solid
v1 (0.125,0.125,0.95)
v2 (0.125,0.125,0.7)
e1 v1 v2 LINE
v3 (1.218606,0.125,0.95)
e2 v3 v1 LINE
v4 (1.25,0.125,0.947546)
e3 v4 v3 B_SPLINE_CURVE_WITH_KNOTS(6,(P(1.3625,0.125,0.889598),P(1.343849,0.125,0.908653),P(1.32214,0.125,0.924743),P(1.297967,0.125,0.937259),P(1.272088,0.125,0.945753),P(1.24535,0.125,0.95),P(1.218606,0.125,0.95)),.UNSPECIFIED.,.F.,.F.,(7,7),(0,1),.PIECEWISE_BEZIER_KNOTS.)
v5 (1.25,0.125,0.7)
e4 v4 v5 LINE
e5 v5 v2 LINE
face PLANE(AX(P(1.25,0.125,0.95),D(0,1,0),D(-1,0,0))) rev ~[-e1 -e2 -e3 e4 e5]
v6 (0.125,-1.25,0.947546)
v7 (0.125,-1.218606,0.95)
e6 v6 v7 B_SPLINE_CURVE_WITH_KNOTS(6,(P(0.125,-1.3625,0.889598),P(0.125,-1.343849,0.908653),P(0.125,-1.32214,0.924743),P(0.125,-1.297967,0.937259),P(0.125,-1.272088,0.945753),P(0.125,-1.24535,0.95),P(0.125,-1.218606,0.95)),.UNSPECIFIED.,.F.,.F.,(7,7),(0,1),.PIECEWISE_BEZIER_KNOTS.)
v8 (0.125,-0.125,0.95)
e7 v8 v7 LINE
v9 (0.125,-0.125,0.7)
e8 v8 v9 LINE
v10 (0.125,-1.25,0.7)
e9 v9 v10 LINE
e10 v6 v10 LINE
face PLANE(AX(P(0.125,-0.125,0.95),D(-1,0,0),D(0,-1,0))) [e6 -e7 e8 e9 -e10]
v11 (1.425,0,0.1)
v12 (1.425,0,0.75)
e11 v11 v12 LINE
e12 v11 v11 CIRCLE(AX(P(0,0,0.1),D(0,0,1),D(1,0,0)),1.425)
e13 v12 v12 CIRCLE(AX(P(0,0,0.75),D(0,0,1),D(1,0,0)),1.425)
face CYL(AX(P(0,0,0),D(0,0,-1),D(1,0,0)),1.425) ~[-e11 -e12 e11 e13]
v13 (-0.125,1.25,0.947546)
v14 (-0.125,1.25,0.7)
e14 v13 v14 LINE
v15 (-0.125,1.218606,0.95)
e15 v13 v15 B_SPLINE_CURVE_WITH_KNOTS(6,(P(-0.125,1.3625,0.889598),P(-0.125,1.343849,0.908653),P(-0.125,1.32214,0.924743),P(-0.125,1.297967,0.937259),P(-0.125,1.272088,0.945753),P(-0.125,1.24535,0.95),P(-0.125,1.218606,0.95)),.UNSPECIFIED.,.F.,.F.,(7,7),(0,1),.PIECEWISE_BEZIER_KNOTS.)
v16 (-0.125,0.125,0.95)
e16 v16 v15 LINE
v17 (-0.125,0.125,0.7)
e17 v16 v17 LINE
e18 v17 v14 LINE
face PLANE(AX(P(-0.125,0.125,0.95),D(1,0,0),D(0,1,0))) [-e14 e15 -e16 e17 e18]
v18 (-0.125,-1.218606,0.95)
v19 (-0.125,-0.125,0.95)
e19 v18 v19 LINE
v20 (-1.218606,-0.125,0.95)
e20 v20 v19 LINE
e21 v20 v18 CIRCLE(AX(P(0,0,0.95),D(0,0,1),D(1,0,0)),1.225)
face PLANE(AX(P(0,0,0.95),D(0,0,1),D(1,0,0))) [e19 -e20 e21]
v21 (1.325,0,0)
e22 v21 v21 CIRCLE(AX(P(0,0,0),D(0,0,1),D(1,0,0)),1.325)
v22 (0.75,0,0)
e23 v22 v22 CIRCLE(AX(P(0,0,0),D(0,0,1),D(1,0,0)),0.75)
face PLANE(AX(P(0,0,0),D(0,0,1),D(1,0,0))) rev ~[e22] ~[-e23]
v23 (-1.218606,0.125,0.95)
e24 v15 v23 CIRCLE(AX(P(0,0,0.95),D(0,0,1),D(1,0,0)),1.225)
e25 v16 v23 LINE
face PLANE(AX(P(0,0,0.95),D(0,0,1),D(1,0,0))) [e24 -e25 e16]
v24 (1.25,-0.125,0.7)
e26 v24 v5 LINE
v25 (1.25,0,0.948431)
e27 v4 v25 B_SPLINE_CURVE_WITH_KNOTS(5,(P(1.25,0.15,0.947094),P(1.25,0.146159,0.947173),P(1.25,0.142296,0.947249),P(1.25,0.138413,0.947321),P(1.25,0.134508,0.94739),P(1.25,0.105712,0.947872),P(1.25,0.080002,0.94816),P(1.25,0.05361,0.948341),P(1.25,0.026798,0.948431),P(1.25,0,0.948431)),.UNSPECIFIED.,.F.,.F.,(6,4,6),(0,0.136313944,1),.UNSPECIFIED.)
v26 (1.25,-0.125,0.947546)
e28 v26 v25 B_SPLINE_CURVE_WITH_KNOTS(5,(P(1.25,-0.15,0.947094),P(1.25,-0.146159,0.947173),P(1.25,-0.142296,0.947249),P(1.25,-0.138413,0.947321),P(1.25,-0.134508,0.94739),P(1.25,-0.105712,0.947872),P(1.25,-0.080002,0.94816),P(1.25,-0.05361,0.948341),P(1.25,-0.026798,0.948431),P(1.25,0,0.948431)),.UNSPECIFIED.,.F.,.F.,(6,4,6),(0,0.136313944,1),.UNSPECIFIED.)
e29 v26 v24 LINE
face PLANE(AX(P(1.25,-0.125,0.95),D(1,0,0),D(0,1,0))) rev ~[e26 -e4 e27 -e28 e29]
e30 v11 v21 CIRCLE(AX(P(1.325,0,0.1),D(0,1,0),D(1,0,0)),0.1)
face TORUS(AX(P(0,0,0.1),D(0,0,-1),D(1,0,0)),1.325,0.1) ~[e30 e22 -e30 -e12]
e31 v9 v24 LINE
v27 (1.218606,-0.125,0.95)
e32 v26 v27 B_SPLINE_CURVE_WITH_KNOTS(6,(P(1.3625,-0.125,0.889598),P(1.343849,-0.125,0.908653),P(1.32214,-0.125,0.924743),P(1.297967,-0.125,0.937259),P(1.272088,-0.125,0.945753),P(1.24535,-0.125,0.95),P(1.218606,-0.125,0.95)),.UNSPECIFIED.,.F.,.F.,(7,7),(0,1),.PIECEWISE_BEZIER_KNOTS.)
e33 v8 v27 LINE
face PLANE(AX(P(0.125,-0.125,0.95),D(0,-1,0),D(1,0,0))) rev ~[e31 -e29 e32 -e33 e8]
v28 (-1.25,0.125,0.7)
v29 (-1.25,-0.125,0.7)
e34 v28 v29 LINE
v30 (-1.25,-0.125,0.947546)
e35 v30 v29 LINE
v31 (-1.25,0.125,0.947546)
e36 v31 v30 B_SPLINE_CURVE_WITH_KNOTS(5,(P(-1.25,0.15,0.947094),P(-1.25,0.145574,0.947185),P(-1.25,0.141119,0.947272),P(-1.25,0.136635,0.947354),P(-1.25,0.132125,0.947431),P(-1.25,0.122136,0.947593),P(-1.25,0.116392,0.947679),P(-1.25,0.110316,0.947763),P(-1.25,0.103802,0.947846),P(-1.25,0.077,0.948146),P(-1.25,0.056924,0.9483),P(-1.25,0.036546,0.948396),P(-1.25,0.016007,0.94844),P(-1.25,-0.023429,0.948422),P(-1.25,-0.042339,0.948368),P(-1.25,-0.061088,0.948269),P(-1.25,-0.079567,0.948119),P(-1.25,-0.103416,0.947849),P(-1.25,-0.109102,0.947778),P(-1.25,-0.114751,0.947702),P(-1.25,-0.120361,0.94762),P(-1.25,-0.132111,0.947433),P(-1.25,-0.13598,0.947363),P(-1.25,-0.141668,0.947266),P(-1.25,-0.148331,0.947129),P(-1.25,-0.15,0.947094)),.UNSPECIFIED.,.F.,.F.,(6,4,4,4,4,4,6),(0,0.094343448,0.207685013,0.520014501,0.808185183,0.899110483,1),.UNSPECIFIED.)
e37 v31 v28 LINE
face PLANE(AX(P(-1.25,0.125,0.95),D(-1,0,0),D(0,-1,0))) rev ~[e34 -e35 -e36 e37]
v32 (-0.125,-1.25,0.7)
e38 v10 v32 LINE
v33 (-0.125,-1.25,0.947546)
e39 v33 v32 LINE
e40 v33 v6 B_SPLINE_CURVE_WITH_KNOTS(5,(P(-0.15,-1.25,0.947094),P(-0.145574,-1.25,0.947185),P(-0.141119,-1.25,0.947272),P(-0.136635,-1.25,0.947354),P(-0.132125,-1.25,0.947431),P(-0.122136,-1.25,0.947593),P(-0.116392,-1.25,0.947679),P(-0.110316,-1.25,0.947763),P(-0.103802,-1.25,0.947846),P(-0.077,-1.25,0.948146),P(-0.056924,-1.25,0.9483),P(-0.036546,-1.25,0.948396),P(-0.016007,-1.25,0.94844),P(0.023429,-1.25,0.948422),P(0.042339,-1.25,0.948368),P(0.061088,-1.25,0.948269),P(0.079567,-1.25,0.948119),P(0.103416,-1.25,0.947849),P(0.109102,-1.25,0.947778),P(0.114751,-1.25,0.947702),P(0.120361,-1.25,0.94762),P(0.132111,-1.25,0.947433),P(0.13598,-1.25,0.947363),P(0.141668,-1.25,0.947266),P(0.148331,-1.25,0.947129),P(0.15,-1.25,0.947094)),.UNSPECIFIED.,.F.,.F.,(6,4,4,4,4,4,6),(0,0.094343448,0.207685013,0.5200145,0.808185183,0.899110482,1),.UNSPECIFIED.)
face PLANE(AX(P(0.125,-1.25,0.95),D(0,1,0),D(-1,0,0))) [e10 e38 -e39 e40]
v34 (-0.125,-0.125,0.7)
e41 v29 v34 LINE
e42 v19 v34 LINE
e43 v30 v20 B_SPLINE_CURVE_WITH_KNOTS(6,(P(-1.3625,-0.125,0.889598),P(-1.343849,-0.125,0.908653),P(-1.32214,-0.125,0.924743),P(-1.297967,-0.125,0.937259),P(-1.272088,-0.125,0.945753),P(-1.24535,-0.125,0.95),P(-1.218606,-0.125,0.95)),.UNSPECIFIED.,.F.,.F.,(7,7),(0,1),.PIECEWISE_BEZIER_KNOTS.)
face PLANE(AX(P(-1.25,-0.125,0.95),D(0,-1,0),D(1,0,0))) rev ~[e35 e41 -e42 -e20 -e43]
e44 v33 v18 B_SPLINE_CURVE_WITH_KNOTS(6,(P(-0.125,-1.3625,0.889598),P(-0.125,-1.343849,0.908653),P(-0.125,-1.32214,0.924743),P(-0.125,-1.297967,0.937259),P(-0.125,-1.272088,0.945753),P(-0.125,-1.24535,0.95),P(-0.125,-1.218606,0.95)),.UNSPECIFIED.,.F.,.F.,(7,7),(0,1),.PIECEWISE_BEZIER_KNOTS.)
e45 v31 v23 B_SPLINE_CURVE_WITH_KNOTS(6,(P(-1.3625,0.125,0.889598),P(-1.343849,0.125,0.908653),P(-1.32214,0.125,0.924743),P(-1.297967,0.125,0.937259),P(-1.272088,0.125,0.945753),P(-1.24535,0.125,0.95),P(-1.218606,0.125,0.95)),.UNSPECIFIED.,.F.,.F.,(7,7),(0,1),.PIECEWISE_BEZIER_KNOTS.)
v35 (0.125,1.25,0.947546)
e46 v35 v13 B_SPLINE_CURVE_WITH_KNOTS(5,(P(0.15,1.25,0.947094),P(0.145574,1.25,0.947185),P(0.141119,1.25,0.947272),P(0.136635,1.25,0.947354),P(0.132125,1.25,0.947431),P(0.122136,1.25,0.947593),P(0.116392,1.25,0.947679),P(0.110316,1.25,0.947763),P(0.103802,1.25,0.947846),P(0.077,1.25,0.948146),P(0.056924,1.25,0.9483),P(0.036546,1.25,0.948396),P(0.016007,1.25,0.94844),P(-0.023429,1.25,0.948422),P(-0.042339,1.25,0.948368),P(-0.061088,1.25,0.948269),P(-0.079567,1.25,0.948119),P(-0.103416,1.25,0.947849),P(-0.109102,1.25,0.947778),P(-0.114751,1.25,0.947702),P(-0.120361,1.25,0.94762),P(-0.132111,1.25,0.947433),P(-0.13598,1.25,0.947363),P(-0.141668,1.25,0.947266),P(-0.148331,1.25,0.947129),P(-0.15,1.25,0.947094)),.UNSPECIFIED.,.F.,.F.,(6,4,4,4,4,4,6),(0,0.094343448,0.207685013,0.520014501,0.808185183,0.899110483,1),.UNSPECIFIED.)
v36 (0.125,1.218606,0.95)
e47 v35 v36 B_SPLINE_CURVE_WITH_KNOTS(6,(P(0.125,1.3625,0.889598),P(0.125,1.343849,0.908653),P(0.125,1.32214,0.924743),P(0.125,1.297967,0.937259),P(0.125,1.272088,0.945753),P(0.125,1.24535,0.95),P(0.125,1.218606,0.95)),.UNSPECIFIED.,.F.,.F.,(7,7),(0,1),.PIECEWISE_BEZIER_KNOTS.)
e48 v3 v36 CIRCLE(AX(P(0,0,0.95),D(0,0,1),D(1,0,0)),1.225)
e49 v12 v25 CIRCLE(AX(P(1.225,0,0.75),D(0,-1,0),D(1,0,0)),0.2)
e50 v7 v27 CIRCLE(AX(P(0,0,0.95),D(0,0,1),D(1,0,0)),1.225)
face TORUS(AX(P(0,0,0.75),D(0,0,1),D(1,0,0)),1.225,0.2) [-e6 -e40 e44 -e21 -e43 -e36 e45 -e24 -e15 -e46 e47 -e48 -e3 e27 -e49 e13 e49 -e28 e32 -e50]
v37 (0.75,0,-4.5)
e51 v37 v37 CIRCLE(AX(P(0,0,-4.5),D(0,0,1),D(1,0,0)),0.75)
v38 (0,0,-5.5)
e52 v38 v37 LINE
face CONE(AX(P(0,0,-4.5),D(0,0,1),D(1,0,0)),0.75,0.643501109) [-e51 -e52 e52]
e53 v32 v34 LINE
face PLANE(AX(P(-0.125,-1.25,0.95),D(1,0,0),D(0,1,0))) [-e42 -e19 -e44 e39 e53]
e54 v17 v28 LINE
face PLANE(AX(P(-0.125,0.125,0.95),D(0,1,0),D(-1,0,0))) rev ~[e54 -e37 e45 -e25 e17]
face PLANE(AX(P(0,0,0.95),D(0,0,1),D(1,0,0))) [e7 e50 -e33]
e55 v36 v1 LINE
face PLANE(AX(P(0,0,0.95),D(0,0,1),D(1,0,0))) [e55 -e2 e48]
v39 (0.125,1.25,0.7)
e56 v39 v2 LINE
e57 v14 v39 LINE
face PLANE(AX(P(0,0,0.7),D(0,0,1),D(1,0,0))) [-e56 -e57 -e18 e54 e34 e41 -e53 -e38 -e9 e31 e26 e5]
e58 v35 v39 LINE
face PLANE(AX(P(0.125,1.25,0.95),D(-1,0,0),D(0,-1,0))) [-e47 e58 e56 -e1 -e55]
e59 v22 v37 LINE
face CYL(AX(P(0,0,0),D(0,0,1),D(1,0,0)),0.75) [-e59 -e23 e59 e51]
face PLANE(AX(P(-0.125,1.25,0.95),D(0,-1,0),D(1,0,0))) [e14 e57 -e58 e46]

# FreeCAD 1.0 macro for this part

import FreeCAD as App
import Part
import Sketcher

V = App.Vector
Q = App.Units.Quantity


def edges_at(feature, points):
    """Names of the edges that pass closest to the given points."""
    edges = feature.Shape.Edges
    near = lambda p: min(range(len(edges)), key=lambda i: edges[i].distToShape(Part.Vertex(*p))[0])
    return sorted({f"Edge{near(p) + 1}" for p in points})

doc = App.newDocument("Part")
params = doc.addObject("Spreadsheet::Sheet", "Params")
for row, (alias, value) in enumerate([
    ("sketch1_diameter", "1.5 mm"),
    ("pad1_length", "5.5 mm"),
    ("sketch2_diameter", "2.85 mm"),
    ("pad2_length", "0.95 mm"),
    ("chamfer_size", "0.75 mm"),
    ("chamfer_size2", "1 mm"),
    ("fillet_radius", "0.2 mm"),
    ("fillet2_radius", "0.1 mm"),
    ("sketch3_width", "0.25 mm"),
    ("pocket1_length", "0.25 mm"),
], start=1):
    params.set(f"A{row}", alias)
    params.set(f"B{row}", "=" + value)
    params.setAlias(f"B{row}", alias)

body = doc.addObject("PartDesign::Body", "Body")

# Sketch on XY plane
sketch1 = body.newObject("Sketcher::SketchObject", "Sketch")
sketch1.AttachmentSupport = (doc.getObject("XY_Plane"), [""])
sketch1.MapMode = "FlatFace"
sketch1.addGeometry(Part.Circle(V(0, 0, 0), V(0, 0, 1), 0.8), False)
sketch1.addConstraint([
    Sketcher.Constraint("Coincident", 0, 3, -1, 1),
    Sketcher.Constraint("Diameter", 0, Q("1.5 mm")),
])
sketch1.setExpression("Constraints[1]", "Params.sketch1_diameter")
pad1 = body.newObject("PartDesign::Pad", "Pad")
pad1.Profile = sketch1
pad1.setExpression("Length", "Params.pad1_length")
pad1.Reversed = True

# Sketch on XY plane
sketch2 = body.newObject("Sketcher::SketchObject", "Sketch001")
sketch2.AttachmentSupport = (doc.getObject("XY_Plane"), [""])
sketch2.MapMode = "FlatFace"
sketch2.addGeometry(Part.Circle(V(0, 0, 0), V(0, 0, 1), 1.4), False)
sketch2.addConstraint([
    Sketcher.Constraint("Coincident", 0, 3, -1, 1),
    Sketcher.Constraint("Diameter", 0, Q("2.85 mm")),
])
sketch2.setExpression("Constraints[1]", "Params.sketch2_diameter")
pad2 = body.newObject("PartDesign::Pad", "Pad001")
pad2.Profile = sketch2
pad2.setExpression("Length", "Params.pad2_length")
doc.recompute()

chamfer = body.newObject("PartDesign::Chamfer", "Chamfer")
chamfer.Base = (pad2, edges_at(pad2, [(-0.75, 0, -5.5)]))
chamfer.ChamferType = "Two distances"
chamfer.setExpression("Size", "Params.chamfer_size")
chamfer.setExpression("Size2", "Params.chamfer_size2")
chamfer.FlipDirection = True
doc.recompute()

fillet = body.newObject("PartDesign::Fillet", "Fillet")
fillet.Base = (chamfer, edges_at(chamfer, [(-1.425, 0, 0.95)]))
fillet.setExpression("Radius", "Params.fillet_radius")
doc.recompute()

fillet2 = body.newObject("PartDesign::Fillet", "Fillet001")
fillet2.Base = (fillet, edges_at(fillet, [(-1.425, 0, 0)]))
fillet2.setExpression("Radius", "Params.fillet2_radius")

# Sketch on XY plane
sketch3 = body.newObject("Sketcher::SketchObject", "Sketch002")
sketch3.AttachmentSupport = (doc.getObject("XY_Plane"), [""])
sketch3.MapMode = "FlatFace"
sketch3.AttachmentOffset = App.Placement(V(0, 0, 0.95), App.Rotation())
sketch3.addGeometry([
    Part.LineSegment(V(1.25, -0.12, 0), V(1.25, 0.12, 0)),  # 0
    Part.LineSegment(V(1.25, 0.12, 0), V(0.12, 0.12, 0)),  # 1
    Part.LineSegment(V(0.12, 0.12, 0), V(0.12, 1.25, 0)),  # 2
    Part.LineSegment(V(0.12, 1.25, 0), V(-0.12, 1.25, 0)),  # 3
    Part.LineSegment(V(-0.12, 1.25, 0), V(-0.12, 0.12, 0)),  # 4
    Part.LineSegment(V(-0.12, 0.12, 0), V(-1.25, 0.12, 0)),  # 5
    Part.LineSegment(V(-1.25, 0.12, 0), V(-1.25, -0.12, 0)),  # 6
    Part.LineSegment(V(-1.25, -0.12, 0), V(-0.12, -0.12, 0)),  # 7
    Part.LineSegment(V(-0.12, -0.12, 0), V(-0.12, -1.25, 0)),  # 8
    Part.LineSegment(V(-0.12, -1.25, 0), V(0.12, -1.25, 0)),  # 9
    Part.LineSegment(V(0.12, -1.25, 0), V(0.12, -0.12, 0)),  # 10
    Part.LineSegment(V(0.12, -0.12, 0), V(1.25, -0.12, 0)),  # 11
], False)
sketch3.addConstraint([
    Sketcher.Constraint("Coincident", 0, 2, 1, 1),
    Sketcher.Constraint("Coincident", 1, 2, 2, 1),
    Sketcher.Constraint("Coincident", 2, 2, 3, 1),
    Sketcher.Constraint("Coincident", 3, 2, 4, 1),
    Sketcher.Constraint("Coincident", 4, 2, 5, 1),
    Sketcher.Constraint("Coincident", 5, 2, 6, 1),
    Sketcher.Constraint("Coincident", 6, 2, 7, 1),
    Sketcher.Constraint("Coincident", 7, 2, 8, 1),
    Sketcher.Constraint("Coincident", 8, 2, 9, 1),
    Sketcher.Constraint("Coincident", 9, 2, 10, 1),
    Sketcher.Constraint("Coincident", 10, 2, 11, 1),
    Sketcher.Constraint("Coincident", 11, 2, 0, 1),
    Sketcher.Constraint("Vertical", 0),
    Sketcher.Constraint("Horizontal", 1),
    Sketcher.Constraint("Vertical", 2),
    Sketcher.Constraint("Horizontal", 3),
    Sketcher.Constraint("Vertical", 4),
    Sketcher.Constraint("Horizontal", 5),
    Sketcher.Constraint("Vertical", 6),
    Sketcher.Constraint("Horizontal", 7),
    Sketcher.Constraint("Vertical", 8),
    Sketcher.Constraint("Horizontal", 9),
    Sketcher.Constraint("Vertical", 10),
    Sketcher.Constraint("Horizontal", 11),
    Sketcher.Constraint("Symmetric", 0, 2, 6, 2, -1, 1),
    Sketcher.Constraint("Symmetric", 2, 2, 8, 2, -1, 1),
    Sketcher.Constraint("Symmetric", 4, 2, 10, 2, -1, 1),
    Sketcher.Constraint("Symmetric", 1, 2, 4, 2, -2),
    Sketcher.Constraint("Equal", 9, 0),
    Sketcher.Constraint("Equal", 11, 2),
    Sketcher.Constraint("DistanceX", 3, 2, 3, 1, Q("0.25 mm")),
    Sketcher.Constraint("DistanceX", 5, 2, 0, 2, Q("2.5 mm")),
])
sketch3.setExpression("Constraints[30]", "Params.sketch3_width")
pocket1 = body.newObject("PartDesign::Pocket", "Pocket")
pocket1.Profile = sketch3
pocket1.setExpression("Length", "Params.pocket1_length")

doc.recompute()
